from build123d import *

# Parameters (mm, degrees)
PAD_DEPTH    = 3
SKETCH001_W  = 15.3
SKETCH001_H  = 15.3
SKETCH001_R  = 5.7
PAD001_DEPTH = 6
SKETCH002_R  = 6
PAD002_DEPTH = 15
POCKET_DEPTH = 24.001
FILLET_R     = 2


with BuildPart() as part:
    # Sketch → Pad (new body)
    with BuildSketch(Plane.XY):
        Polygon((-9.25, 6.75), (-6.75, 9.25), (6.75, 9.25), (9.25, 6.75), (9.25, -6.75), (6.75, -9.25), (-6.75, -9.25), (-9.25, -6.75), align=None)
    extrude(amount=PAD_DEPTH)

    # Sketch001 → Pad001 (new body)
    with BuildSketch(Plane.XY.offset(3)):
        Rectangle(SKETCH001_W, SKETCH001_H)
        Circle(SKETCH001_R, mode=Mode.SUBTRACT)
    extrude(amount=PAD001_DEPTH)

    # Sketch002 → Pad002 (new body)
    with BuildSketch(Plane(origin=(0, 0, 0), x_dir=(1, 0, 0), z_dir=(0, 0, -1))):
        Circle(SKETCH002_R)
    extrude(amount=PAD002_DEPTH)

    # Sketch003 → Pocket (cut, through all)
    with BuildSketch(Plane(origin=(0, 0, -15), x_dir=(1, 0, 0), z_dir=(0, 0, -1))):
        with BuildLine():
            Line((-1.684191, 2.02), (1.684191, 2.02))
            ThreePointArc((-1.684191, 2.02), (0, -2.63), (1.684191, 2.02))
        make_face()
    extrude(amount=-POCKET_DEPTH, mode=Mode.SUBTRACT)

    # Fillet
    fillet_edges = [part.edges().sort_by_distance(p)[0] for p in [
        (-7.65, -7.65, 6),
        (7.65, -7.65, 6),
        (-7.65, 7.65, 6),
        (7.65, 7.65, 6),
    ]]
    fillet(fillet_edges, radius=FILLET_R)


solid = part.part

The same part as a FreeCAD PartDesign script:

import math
import FreeCAD as App
import Part
import Sketcher
from FreeCAD import Vector


def edges_at(feature, points):
    """Names of the edges that pass closest to the given points."""
    edges = feature.Shape.Edges
    near = lambda p: min(range(len(edges)), key=lambda i: edges[i].distToShape(Part.Vertex(*p))[0])
    return sorted({f"Edge{near(p) + 1}" for p in points})

doc = App.newDocument("Part")
body = doc.addObject("PartDesign::Body", "Body")

# Sketch on XY plane
sketch1 = body.newObject("Sketcher::SketchObject", "Sketch")
sketch1.AttachmentSupport = (doc.getObject("XY_Plane"), [""])
sketch1.MapMode = "FlatFace"
sketch1.addGeometry(Part.LineSegment(Vector(-6.8, 9.2, 0), Vector(-9.2, 6.8, 0)), False)
sketch1.addGeometry(Part.LineSegment(Vector(-9.2, 6.8, 0), Vector(-9.2, -6.8, 0)), False)
sketch1.addGeometry(Part.LineSegment(Vector(-9.2, -6.8, 0), Vector(-6.8, -9.2, 0)), False)
sketch1.addGeometry(Part.LineSegment(Vector(-6.8, -9.2, 0), Vector(6.8, -9.2, 0)), False)
sketch1.addGeometry(Part.LineSegment(Vector(6.8, -9.2, 0), Vector(9.2, -6.8, 0)), False)
sketch1.addGeometry(Part.LineSegment(Vector(9.2, -6.8, 0), Vector(9.2, 6.8, 0)), False)
sketch1.addGeometry(Part.LineSegment(Vector(9.2, 6.8, 0), Vector(6.8, 9.2, 0)), False)
sketch1.addGeometry(Part.LineSegment(Vector(6.8, 9.2, 0), Vector(-6.8, 9.2, 0)), False)
sketch1.addConstraint(Sketcher.Constraint("Coincident", 0, 2, 1, 1))
sketch1.addConstraint(Sketcher.Constraint("Coincident", 1, 2, 2, 1))
sketch1.addConstraint(Sketcher.Constraint("Coincident", 2, 2, 3, 1))
sketch1.addConstraint(Sketcher.Constraint("Coincident", 3, 2, 4, 1))
sketch1.addConstraint(Sketcher.Constraint("Coincident", 4, 2, 5, 1))
sketch1.addConstraint(Sketcher.Constraint("Coincident", 5, 2, 6, 1))
sketch1.addConstraint(Sketcher.Constraint("Coincident", 6, 2, 7, 1))
sketch1.addConstraint(Sketcher.Constraint("Coincident", 7, 2, 0, 1))
sketch1.addConstraint(Sketcher.Constraint("Vertical", 1))
sketch1.addConstraint(Sketcher.Constraint("Horizontal", 3))
sketch1.addConstraint(Sketcher.Constraint("Vertical", 5))
sketch1.addConstraint(Sketcher.Constraint("Horizontal", 7))
sketch1.addConstraint(Sketcher.Constraint("Symmetric", 0, 2, 4, 2, -1, 1))
sketch1.addConstraint(Sketcher.Constraint("Symmetric", 2, 2, 6, 2, -1, 1))
sketch1.addConstraint(Sketcher.Constraint("Perpendicular", 0, 2))
sketch1.addConstraint(Sketcher.Constraint("Perpendicular", 2, 4))
sketch1.addConstraint(Sketcher.Constraint("Perpendicular", 4, 6))
sketch1.addConstraint(Sketcher.Constraint("Horizontal", 1, 2, 4, 2))
sketch1.addConstraint(Sketcher.Constraint("Vertical", 3, 2, 6, 2))
sketch1.addConstraint(Sketcher.Constraint("Equal", 7, 1))
sketch1.addConstraint(Sketcher.Constraint("DistanceX", 3, 1, 3, 2, 13.5))
sketch1.addConstraint(Sketcher.Constraint("DistanceY", 2, 2, 0, 2, 16.0))
pad1 = body.newObject("PartDesign::Pad", "Pad")
pad1.Profile = sketch1
pad1.Length = 3

# Sketch on XY plane
sketch2 = body.newObject("Sketcher::SketchObject", "Sketch001")
sketch2.AttachmentSupport = (doc.getObject("XY_Plane"), [""])
sketch2.MapMode = "FlatFace"
sketch2.AttachmentOffset = App.Placement(Vector(0, 0, 3), App.Rotation())
sketch2.addGeometry(Part.LineSegment(Vector(-8, 8, 0), Vector(-8, -8, 0)), False)
sketch2.addGeometry(Part.LineSegment(Vector(-8, -8, 0), Vector(8, -8, 0)), False)
sketch2.addGeometry(Part.LineSegment(Vector(8, -8, 0), Vector(8, 8, 0)), False)
sketch2.addGeometry(Part.LineSegment(Vector(8, 8, 0), Vector(-8, 8, 0)), False)
sketch2.addGeometry(Part.Circle(Vector(0, 0, 0), Vector(0, 0, 1), 6), False)
sketch2.addConstraint(Sketcher.Constraint("Coincident", 0, 2, 1, 1))
sketch2.addConstraint(Sketcher.Constraint("Coincident", 1, 2, 2, 1))
sketch2.addConstraint(Sketcher.Constraint("Coincident", 2, 2, 3, 1))
sketch2.addConstraint(Sketcher.Constraint("Coincident", 3, 2, 0, 1))
sketch2.addConstraint(Sketcher.Constraint("Vertical", 0))
sketch2.addConstraint(Sketcher.Constraint("Horizontal", 1))
sketch2.addConstraint(Sketcher.Constraint("Vertical", 2))
sketch2.addConstraint(Sketcher.Constraint("Horizontal", 3))
sketch2.addConstraint(Sketcher.Constraint("Coincident", 4, 3, -1, 1))
sketch2.addConstraint(Sketcher.Constraint("Symmetric", 0, 2, 2, 2, -1, 1))
sketch2.addConstraint(Sketcher.Constraint("Equal", 3, 0))
sketch2.addConstraint(Sketcher.Constraint("Diameter", 4, 11.4))
sketch2.addConstraint(Sketcher.Constraint("DistanceX", 1, 1, 1, 2, 15.3))
pad2 = body.newObject("PartDesign::Pad", "Pad001")
pad2.Profile = sketch2
pad2.Length = 6

# Sketch on XY plane
sketch3 = body.newObject("Sketcher::SketchObject", "Sketch002")
sketch3.AttachmentSupport = (doc.getObject("XY_Plane"), [""])
sketch3.MapMode = "FlatFace"
sketch3.addGeometry(Part.Circle(Vector(0, 0, 0), Vector(0, 0, 1), 6), False)
sketch3.addConstraint(Sketcher.Constraint("Coincident", 0, 3, -1, 1))
sketch3.addConstraint(Sketcher.Constraint("Diameter", 0, 12.0))
pad3 = body.newObject("PartDesign::Pad", "Pad002")
pad3.Profile = sketch3
pad3.Length = 15
pad3.Reversed = True

# Sketch on XY plane
sketch4 = body.newObject("Sketcher::SketchObject", "Sketch003")
sketch4.AttachmentSupport = (doc.getObject("XY_Plane"), [""])
sketch4.MapMode = "FlatFace"
sketch4.AttachmentOffset = App.Placement(Vector(0, 0, -15), App.Rotation())
sketch4.addGeometry(Part.LineSegment(Vector(1.7, -2, 0), Vector(-1.7, -2, 0)), False)
sketch4.addGeometry(Part.ArcOfCircle(Part.Circle(Vector(0, 0, 0), Vector(0, 0, 1), 2.6), math.radians(-50), math.radians(230)), False)
sketch4.addConstraint(Sketcher.Constraint("Coincident", 0, 1, 1, 1))
sketch4.addConstraint(Sketcher.Constraint("Coincident", 1, 2, 0, 2))
sketch4.addConstraint(Sketcher.Constraint("Horizontal", 0))
sketch4.addConstraint(Sketcher.Constraint("Coincident", 1, 3, -1, 1))
sketch4.addConstraint(Sketcher.Constraint("Radius", 1, 2.63))
sketch4.addConstraint(Sketcher.Constraint("DistanceY", 0, 1, -1, 1, 2.02))
pocket1 = body.newObject("PartDesign::Pocket", "Pocket")
pocket1.Profile = sketch4
pocket1.Type = "ThroughAll"
pocket1.Reversed = True
doc.recompute()

fillet = body.newObject("PartDesign::Fillet", "Fillet")
fillet.Base = (pocket1, edges_at(pocket1, [
    (-7.65, -7.65, 6),
    (7.65, -7.65, 6),
    (-7.65, 7.65, 6),
    (7.65, 7.65, 6),
]))
fillet.Radius = 2

doc.recompute()
